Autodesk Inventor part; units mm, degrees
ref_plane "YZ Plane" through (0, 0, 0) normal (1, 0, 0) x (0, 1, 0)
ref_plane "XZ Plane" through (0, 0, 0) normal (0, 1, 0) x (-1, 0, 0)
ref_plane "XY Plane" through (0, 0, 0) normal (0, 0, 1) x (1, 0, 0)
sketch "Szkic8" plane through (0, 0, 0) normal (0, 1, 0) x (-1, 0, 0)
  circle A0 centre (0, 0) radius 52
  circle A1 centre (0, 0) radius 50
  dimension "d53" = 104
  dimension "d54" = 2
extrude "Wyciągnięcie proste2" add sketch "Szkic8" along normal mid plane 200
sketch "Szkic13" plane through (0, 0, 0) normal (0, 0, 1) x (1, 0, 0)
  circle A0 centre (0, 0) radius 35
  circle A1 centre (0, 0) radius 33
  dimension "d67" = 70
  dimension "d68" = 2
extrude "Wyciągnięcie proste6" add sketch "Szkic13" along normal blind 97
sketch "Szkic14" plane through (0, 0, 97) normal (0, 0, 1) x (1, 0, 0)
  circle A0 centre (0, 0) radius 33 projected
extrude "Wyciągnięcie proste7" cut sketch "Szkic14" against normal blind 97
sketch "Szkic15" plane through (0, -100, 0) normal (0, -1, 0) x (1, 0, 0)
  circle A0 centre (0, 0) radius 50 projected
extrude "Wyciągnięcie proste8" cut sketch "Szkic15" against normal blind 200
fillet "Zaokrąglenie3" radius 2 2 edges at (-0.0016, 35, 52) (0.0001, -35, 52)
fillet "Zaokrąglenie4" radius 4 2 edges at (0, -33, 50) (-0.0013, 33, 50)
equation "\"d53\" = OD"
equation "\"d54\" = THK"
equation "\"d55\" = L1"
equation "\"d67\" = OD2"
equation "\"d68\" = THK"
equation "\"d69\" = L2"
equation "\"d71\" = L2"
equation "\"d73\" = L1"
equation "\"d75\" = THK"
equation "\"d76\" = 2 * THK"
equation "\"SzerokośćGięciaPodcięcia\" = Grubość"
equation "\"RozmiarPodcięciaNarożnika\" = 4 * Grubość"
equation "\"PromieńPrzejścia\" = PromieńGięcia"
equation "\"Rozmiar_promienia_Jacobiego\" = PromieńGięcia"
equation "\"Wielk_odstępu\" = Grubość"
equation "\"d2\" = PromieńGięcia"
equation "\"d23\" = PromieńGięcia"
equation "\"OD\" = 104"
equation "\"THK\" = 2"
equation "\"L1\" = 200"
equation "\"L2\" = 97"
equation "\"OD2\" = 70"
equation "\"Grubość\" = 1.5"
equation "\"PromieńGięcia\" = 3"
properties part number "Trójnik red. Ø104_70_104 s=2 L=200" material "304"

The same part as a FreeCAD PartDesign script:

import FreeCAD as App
import Part
import Sketcher

V = App.Vector


def edges_at(feature, points):
    """Names of the edges that pass closest to the given points."""
    edges = feature.Shape.Edges
    near = lambda p: min(range(len(edges)), key=lambda i: edges[i].distToShape(Part.Vertex(*p))[0])
    return sorted({f"Edge{near(p) + 1}" for p in points})

doc = App.newDocument("Part")
body = doc.addObject("PartDesign::Body", "Body")

# Sketch on XZ plane
sketch1 = body.newObject("Sketcher::SketchObject", "Sketch")
sketch1.AttachmentSupport = (doc.getObject("XZ_Plane"), [""])
sketch1.MapMode = "FlatFace"
sketch1.addGeometry([
    Part.Circle(V(0, 0, 0), V(0, 0, 1), 52),
    Part.Circle(V(0, 0, 0), V(0, 0, 1), 50),
], False)
sketch1.addConstraint([
    Sketcher.Constraint("Coincident", 0, 3, -1, 1),
    Sketcher.Constraint("Coincident", 1, 3, -1, 1),
    Sketcher.Constraint("Diameter", 0, 104.0),
    Sketcher.Constraint("Diameter", 1, 100.0),
])
pad1 = body.newObject("PartDesign::Pad", "Pad")
pad1.Profile = sketch1
pad1.Length = 200
pad1.Midplane = True

# Sketch on XY plane
sketch2 = body.newObject("Sketcher::SketchObject", "Sketch001")
sketch2.AttachmentSupport = (doc.getObject("XY_Plane"), [""])
sketch2.MapMode = "FlatFace"
sketch2.addGeometry([
    Part.Circle(V(0, 0, 0), V(0, 0, 1), 35),
    Part.Circle(V(0, 0, 0), V(0, 0, 1), 33),
], False)
sketch2.addConstraint([
    Sketcher.Constraint("Coincident", 0, 3, -1, 1),
    Sketcher.Constraint("Coincident", 1, 3, -1, 1),
    Sketcher.Constraint("Diameter", 0, 70.0),
    Sketcher.Constraint("Diameter", 1, 66.0),
])
pad2 = body.newObject("PartDesign::Pad", "Pad001")
pad2.Profile = sketch2
pad2.Length = 97

# Sketch on XY plane
sketch3 = body.newObject("Sketcher::SketchObject", "Sketch002")
sketch3.AttachmentSupport = (doc.getObject("XY_Plane"), [""])
sketch3.MapMode = "FlatFace"
sketch3.AttachmentOffset = App.Placement(V(0, 0, 97), App.Rotation())
sketch3.addGeometry(Part.Circle(V(0, 0, 0), V(0, 0, 1), 33), False)
sketch3.addConstraint([
    Sketcher.Constraint("Coincident", 0, 3, -1, 1),
    Sketcher.Constraint("Diameter", 0, 66.0),
])
pocket1 = body.newObject("PartDesign::Pocket", "Pocket")
pocket1.Profile = sketch3
pocket1.Length = 97

# Sketch on XZ plane
sketch4 = body.newObject("Sketcher::SketchObject", "Sketch003")
sketch4.AttachmentSupport = (doc.getObject("XZ_Plane"), [""])
sketch4.MapMode = "FlatFace"
sketch4.AttachmentOffset = App.Placement(V(0, 0, 100), App.Rotation())
sketch4.addGeometry(Part.Circle(V(0, 0, 0), V(0, 0, 1), 50), False)
sketch4.addConstraint([
    Sketcher.Constraint("Coincident", 0, 3, -1, 1),
    Sketcher.Constraint("Diameter", 0, 100.0),
])
pocket2 = body.newObject("PartDesign::Pocket", "Pocket001")
pocket2.Profile = sketch4
pocket2.Length = 200
doc.recompute()

fillet = body.newObject("PartDesign::Fillet", "Fillet")
fillet.Base = (pocket2, edges_at(pocket2, [(-0.002, 35, 52), (0, -35, 52)]))
fillet.Radius = 2
doc.recompute()

fillet2 = body.newObject("PartDesign::Fillet", "Fillet001")
fillet2.Base = (fillet, edges_at(fillet, [(0, -33, 50), (-0.001, 33, 50)]))
fillet2.Radius = 4

doc.recompute()
